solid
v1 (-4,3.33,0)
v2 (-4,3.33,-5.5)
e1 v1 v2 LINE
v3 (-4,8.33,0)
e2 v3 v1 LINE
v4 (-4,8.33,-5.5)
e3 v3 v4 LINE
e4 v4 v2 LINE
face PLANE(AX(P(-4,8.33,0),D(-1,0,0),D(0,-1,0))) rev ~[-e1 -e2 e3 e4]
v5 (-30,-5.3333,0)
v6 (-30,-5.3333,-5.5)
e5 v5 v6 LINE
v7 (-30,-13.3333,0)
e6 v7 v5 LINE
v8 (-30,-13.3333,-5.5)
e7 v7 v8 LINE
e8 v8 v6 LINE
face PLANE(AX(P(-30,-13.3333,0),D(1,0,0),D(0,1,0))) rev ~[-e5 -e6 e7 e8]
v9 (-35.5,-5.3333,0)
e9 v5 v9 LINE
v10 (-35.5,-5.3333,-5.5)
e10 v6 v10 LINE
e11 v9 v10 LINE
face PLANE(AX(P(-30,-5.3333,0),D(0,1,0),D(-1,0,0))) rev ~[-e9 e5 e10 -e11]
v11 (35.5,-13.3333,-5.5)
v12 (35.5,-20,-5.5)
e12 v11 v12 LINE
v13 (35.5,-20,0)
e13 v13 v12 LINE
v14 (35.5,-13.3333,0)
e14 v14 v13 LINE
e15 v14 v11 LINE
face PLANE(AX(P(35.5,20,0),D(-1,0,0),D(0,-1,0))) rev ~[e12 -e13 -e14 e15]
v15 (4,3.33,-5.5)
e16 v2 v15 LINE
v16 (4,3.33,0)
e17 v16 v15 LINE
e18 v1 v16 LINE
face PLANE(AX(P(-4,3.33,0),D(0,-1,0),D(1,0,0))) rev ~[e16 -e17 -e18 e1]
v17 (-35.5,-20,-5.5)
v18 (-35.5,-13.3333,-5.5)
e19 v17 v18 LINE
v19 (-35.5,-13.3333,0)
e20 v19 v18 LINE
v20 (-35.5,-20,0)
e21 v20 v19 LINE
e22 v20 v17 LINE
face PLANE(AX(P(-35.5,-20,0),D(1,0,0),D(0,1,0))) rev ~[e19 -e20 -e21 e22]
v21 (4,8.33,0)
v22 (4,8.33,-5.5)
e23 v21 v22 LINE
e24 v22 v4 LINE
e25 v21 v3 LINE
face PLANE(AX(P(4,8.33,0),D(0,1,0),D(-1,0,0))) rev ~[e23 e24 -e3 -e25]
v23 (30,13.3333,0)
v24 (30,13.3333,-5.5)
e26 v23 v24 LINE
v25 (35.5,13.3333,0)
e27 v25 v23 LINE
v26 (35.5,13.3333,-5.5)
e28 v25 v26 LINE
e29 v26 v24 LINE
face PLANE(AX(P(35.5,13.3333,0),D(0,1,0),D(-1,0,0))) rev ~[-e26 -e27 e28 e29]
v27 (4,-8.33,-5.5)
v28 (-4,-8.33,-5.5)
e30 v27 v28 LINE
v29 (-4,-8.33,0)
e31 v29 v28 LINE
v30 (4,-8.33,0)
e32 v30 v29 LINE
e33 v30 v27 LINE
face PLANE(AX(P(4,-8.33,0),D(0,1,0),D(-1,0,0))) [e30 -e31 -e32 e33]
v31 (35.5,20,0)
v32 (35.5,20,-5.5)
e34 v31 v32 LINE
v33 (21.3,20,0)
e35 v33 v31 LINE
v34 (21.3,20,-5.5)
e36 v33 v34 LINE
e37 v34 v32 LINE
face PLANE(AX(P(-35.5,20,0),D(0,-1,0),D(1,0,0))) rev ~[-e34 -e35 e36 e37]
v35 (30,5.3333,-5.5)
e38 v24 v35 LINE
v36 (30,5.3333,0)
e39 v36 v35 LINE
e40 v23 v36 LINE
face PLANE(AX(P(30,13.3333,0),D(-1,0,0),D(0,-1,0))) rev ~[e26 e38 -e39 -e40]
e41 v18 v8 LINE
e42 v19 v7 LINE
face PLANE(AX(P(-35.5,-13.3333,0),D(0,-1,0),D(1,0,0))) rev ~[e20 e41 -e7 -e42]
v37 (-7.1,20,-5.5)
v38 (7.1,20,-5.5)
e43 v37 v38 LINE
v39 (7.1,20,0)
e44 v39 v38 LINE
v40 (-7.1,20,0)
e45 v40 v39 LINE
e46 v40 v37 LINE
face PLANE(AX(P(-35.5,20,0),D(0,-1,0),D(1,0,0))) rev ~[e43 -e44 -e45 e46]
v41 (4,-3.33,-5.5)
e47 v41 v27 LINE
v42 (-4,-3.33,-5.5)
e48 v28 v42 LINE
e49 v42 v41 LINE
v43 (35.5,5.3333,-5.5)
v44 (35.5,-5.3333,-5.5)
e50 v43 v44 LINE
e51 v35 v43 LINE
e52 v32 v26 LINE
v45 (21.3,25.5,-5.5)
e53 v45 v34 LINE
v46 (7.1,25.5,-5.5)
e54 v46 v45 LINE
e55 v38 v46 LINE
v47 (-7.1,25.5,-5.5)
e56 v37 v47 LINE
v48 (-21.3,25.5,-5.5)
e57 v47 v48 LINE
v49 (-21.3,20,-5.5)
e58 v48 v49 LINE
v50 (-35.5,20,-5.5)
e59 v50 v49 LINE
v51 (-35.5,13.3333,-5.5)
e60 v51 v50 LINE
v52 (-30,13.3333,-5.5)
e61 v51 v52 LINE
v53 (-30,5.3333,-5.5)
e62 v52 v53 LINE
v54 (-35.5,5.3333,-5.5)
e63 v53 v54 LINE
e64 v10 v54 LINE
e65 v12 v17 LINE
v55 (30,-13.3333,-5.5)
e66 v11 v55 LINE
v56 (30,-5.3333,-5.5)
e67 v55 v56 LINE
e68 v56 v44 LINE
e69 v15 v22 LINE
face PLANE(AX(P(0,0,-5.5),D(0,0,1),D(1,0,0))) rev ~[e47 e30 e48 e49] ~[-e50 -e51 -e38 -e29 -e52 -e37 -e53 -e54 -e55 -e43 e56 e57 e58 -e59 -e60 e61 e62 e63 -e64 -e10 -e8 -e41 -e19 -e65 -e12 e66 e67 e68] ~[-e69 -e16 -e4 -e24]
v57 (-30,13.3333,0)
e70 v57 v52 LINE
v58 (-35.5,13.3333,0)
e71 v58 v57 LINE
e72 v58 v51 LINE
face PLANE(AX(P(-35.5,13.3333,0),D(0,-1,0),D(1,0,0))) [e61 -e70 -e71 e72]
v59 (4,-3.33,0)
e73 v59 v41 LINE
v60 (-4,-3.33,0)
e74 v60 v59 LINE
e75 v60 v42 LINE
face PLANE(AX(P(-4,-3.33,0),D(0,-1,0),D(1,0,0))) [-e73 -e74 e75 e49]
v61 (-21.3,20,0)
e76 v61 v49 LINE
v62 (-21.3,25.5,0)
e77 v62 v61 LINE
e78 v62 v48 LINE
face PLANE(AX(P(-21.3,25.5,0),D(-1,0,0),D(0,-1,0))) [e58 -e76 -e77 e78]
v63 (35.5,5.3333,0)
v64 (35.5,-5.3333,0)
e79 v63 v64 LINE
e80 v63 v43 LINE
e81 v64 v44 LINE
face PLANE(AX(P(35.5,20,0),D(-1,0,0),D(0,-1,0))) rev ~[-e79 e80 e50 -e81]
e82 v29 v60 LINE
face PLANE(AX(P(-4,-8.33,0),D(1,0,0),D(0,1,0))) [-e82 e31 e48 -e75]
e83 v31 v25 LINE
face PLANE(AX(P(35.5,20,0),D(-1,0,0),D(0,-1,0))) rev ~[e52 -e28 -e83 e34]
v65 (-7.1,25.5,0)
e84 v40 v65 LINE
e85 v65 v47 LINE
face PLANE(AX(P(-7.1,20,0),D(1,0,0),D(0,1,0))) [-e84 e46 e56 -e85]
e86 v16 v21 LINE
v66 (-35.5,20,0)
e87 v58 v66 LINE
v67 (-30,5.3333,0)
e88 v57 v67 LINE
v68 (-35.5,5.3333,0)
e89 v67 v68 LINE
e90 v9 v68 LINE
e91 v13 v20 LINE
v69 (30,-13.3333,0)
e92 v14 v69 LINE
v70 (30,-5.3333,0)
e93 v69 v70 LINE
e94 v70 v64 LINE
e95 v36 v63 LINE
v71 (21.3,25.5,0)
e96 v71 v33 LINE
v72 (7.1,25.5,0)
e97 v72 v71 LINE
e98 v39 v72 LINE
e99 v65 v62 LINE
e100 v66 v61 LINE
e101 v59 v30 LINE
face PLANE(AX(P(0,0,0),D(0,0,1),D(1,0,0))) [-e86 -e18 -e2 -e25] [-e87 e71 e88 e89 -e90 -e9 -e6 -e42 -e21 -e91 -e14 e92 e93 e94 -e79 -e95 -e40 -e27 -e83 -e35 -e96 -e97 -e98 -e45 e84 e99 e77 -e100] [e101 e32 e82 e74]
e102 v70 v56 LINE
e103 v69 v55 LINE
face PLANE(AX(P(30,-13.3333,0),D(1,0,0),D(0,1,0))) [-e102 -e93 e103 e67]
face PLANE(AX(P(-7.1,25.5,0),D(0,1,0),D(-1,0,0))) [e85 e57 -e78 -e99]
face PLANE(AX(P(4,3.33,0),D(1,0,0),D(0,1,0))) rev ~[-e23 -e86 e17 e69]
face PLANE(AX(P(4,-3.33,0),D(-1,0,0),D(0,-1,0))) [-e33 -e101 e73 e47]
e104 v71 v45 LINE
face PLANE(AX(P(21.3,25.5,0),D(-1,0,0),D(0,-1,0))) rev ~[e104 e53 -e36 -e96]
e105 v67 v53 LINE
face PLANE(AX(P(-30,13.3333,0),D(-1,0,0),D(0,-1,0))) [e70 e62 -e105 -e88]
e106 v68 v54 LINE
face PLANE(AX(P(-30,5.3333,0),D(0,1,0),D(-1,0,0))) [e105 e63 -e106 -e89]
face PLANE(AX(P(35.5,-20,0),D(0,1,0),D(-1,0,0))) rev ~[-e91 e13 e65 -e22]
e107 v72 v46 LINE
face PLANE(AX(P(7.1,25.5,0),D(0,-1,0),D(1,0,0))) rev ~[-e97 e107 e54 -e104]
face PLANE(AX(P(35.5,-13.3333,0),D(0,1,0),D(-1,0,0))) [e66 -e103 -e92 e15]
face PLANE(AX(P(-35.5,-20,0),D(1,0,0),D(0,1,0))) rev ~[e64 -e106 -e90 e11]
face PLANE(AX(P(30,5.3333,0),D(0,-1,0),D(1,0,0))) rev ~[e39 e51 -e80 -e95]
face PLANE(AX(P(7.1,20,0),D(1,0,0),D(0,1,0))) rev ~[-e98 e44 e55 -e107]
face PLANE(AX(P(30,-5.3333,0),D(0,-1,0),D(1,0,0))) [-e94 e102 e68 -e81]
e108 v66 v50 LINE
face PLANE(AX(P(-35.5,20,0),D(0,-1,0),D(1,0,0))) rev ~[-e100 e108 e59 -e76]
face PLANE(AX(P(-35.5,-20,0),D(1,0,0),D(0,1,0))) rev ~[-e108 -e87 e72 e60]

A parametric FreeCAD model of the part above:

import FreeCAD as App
import Part
import Sketcher
from FreeCAD import Vector
Q = App.Units.Quantity

doc = App.newDocument("Part")
params = doc.addObject("Spreadsheet::Sheet", "Params")
for row, (alias, value) in enumerate([
    ("sketch1_width", "71 mm"),
    ("sketch1_height", "40 mm"),
    ("pad1_length", "5.5 mm"),
    ("sketch2_width", "8 mm"),
    ("sketch2_height", "5 mm"),
    ("sketch3_height", "8 mm"),
    ("sketch3_width", "5.5 mm"),
    ("sketch4_width", "14.2 mm"),
    ("sketch4_height", "5.5 mm"),
    ("pad2_length", "5.5 mm"),
], start=1):
    params.set(f"A{row}", alias)
    params.set(f"B{row}", "=" + value)
    params.setAlias(f"B{row}", alias)

body = doc.addObject("PartDesign::Body", "Body")

# Sketch on XY plane
sketch1 = body.newObject("Sketcher::SketchObject", "Sketch")
sketch1.AttachmentSupport = (doc.getObject("XY_Plane"), [""])
sketch1.MapMode = "FlatFace"
sketch1.addGeometry([
    Part.LineSegment(Vector(-36, -20, 0), Vector(36, -20, 0)),
    Part.LineSegment(Vector(36, -20, 0), Vector(36, 20, 0)),
    Part.LineSegment(Vector(36, 20, 0), Vector(-36, 20, 0)),
    Part.LineSegment(Vector(-36, 20, 0), Vector(-36, -20, 0)),
], False)
sketch1.addConstraint([
    Sketcher.Constraint("Coincident", 0, 2, 1, 1),
    Sketcher.Constraint("Coincident", 1, 2, 2, 1),
    Sketcher.Constraint("Coincident", 2, 2, 3, 1),
    Sketcher.Constraint("Coincident", 3, 2, 0, 1),
    Sketcher.Constraint("Horizontal", 0),
    Sketcher.Constraint("Vertical", 1),
    Sketcher.Constraint("Horizontal", 2),
    Sketcher.Constraint("Vertical", 3),
    Sketcher.Constraint("Symmetric", 0, 2, 2, 2, -1, 1),
    Sketcher.Constraint("DistanceX", 0, 1, 0, 2, Q("71 mm")),
    Sketcher.Constraint("DistanceY", 1, 1, 1, 2, Q("40 mm")),
])
sketch1.setExpression("Constraints[9]", "Params.sketch1_width")
sketch1.setExpression("Constraints[10]", "Params.sketch1_height")
pad1 = body.newObject("PartDesign::Pad", "Pad")
pad1.Profile = sketch1
pad1.setExpression("Length", "Params.pad1_length")
pad1.Reversed = True

# Sketch on XY plane
sketch2 = body.newObject("Sketcher::SketchObject", "Sketch001")
sketch2.AttachmentSupport = (doc.getObject("XY_Plane"), [""])
sketch2.MapMode = "FlatFace"
sketch2.addGeometry([
    Part.LineSegment(Vector(-4, -8, 0), Vector(4, -8, 0)),  # 0
    Part.LineSegment(Vector(4, -8, 0), Vector(4, -3, 0)),  # 1
    Part.LineSegment(Vector(4, -3, 0), Vector(-4, -3, 0)),  # 2
    Part.LineSegment(Vector(-4, -3, 0), Vector(-4, -8, 0)),  # 3
    Part.LineSegment(Vector(4, 3, 0), Vector(4, 8, 0)),  # 4
    Part.LineSegment(Vector(4, 8, 0), Vector(-4, 8, 0)),  # 5
    Part.LineSegment(Vector(-4, 8, 0), Vector(-4, 3, 0)),  # 6
    Part.LineSegment(Vector(-4, 3, 0), Vector(4, 3, 0)),  # 7
], False)
sketch2.addConstraint([
    Sketcher.Constraint("Coincident", 0, 2, 1, 1),
    Sketcher.Constraint("Coincident", 1, 2, 2, 1),
    Sketcher.Constraint("Coincident", 2, 2, 3, 1),
    Sketcher.Constraint("Coincident", 3, 2, 0, 1),
    Sketcher.Constraint("Coincident", 4, 2, 5, 1),
    Sketcher.Constraint("Coincident", 5, 2, 6, 1),
    Sketcher.Constraint("Coincident", 6, 2, 7, 1),
    Sketcher.Constraint("Coincident", 7, 2, 4, 1),
    Sketcher.Constraint("Horizontal", 0),
    Sketcher.Constraint("Vertical", 1),
    Sketcher.Constraint("Horizontal", 2),
    Sketcher.Constraint("Vertical", 3),
    Sketcher.Constraint("Vertical", 4),
    Sketcher.Constraint("Horizontal", 5),
    Sketcher.Constraint("Vertical", 6),
    Sketcher.Constraint("Horizontal", 7),
    Sketcher.Constraint("Symmetric", 3, 2, 4, 2, -1, 1),
    Sketcher.Constraint("Symmetric", 1, 2, 6, 2, -1, 1),
    Sketcher.Constraint("Vertical", 1, 2, 4, 2),
    Sketcher.Constraint("DistanceX", 0, 1, 0, 2, Q("8 mm")),
    Sketcher.Constraint("DistanceY", 1, 1, 1, 2, Q("5 mm")),
    Sketcher.Constraint("DistanceY", 1, 2, -1, 1, Q("3.33 mm")),
])
sketch2.setExpression("Constraints[19]", "Params.sketch2_width")
sketch2.setExpression("Constraints[20]", "Params.sketch2_height")
pocket1 = body.newObject("PartDesign::Pocket", "Pocket")
pocket1.Profile = sketch2
pocket1.Type = "ThroughAll"

# Sketch on XY plane
sketch3 = body.newObject("Sketcher::SketchObject", "Sketch002")
sketch3.AttachmentSupport = (doc.getObject("XY_Plane"), [""])
sketch3.MapMode = "FlatFace"
sketch3.addGeometry([
    Part.LineSegment(Vector(-30, -5, 0), Vector(-36, -5, 0)),  # 0
    Part.LineSegment(Vector(-36, -5, 0), Vector(-36, -13, 0)),  # 1
    Part.LineSegment(Vector(-36, -13, 0), Vector(-30, -13, 0)),  # 2
    Part.LineSegment(Vector(-30, -13, 0), Vector(-30, -5, 0)),  # 3
    Part.LineSegment(Vector(-30, 13, 0), Vector(-36, 13, 0)),  # 4
    Part.LineSegment(Vector(-36, 13, 0), Vector(-36, 5, 0)),  # 5
    Part.LineSegment(Vector(-36, 5, 0), Vector(-30, 5, 0)),  # 6
    Part.LineSegment(Vector(-30, 5, 0), Vector(-30, 13, 0)),  # 7
    Part.LineSegment(Vector(36, 5, 0), Vector(36, 13, 0)),  # 8
    Part.LineSegment(Vector(36, 13, 0), Vector(30, 13, 0)),  # 9
    Part.LineSegment(Vector(30, 13, 0), Vector(30, 5, 0)),  # 10
    Part.LineSegment(Vector(30, 5, 0), Vector(36, 5, 0)),  # 11
    Part.LineSegment(Vector(30, -5, 0), Vector(30, -13, 0)),  # 12
    Part.LineSegment(Vector(30, -13, 0), Vector(36, -13, 0)),  # 13
    Part.LineSegment(Vector(36, -13, 0), Vector(36, -5, 0)),  # 14
    Part.LineSegment(Vector(36, -5, 0), Vector(30, -5, 0)),  # 15
], False)
sketch3.addConstraint([
    Sketcher.Constraint("Coincident", 0, 2, 1, 1),
    Sketcher.Constraint("Coincident", 1, 2, 2, 1),
    Sketcher.Constraint("Coincident", 2, 2, 3, 1),
    Sketcher.Constraint("Coincident", 3, 2, 0, 1),
    Sketcher.Constraint("Coincident", 4, 2, 5, 1),
    Sketcher.Constraint("Coincident", 5, 2, 6, 1),
    Sketcher.Constraint("Coincident", 6, 2, 7, 1),
    Sketcher.Constraint("Coincident", 7, 2, 4, 1),
    Sketcher.Constraint("Coincident", 8, 2, 9, 1),
    Sketcher.Constraint("Coincident", 9, 2, 10, 1),
    Sketcher.Constraint("Coincident", 10, 2, 11, 1),
    Sketcher.Constraint("Coincident", 11, 2, 8, 1),
    Sketcher.Constraint("Coincident", 12, 2, 13, 1),
    Sketcher.Constraint("Coincident", 13, 2, 14, 1),
    Sketcher.Constraint("Coincident", 14, 2, 15, 1),
    Sketcher.Constraint("Coincident", 15, 2, 12, 1),
    Sketcher.Constraint("Horizontal", 0),
    Sketcher.Constraint("Vertical", 1),
    Sketcher.Constraint("Horizontal", 2),
    Sketcher.Constraint("Vertical", 3),
    Sketcher.Constraint("Horizontal", 4),
    Sketcher.Constraint("Vertical", 5),
    Sketcher.Constraint("Horizontal", 6),
    Sketcher.Constraint("Vertical", 7),
    Sketcher.Constraint("Vertical", 8),
    Sketcher.Constraint("Horizontal", 9),
    Sketcher.Constraint("Vertical", 10),
    Sketcher.Constraint("Horizontal", 11),
    Sketcher.Constraint("Vertical", 12),
    Sketcher.Constraint("Horizontal", 13),
    Sketcher.Constraint("Vertical", 14),
    Sketcher.Constraint("Horizontal", 15),
    Sketcher.Constraint("Symmetric", 1, 2, 8, 2, -1, 1),
    Sketcher.Constraint("Symmetric", 3, 2, 10, 2, -1, 1),
    Sketcher.Constraint("Symmetric", 7, 2, 12, 2, -1, 1),
    Sketcher.Constraint("Symmetric", 5, 2, 14, 2, -1, 1),
    Sketcher.Constraint("Symmetric", 4, 2, 8, 2, -2),
    Sketcher.Constraint("Symmetric", 6, 2, 10, 2, -2),
    Sketcher.Constraint("DistanceY", 1, 2, 1, 1, Q("8 mm")),
    Sketcher.Constraint("DistanceX", 0, 2, 0, 1, Q("5.5 mm")),
    Sketcher.Constraint("DistanceX", 2, 2, -1, 1, Q("30 mm")),
    Sketcher.Constraint("DistanceY", 0, 2, -1, 1, Q("5.3333 mm")),
])
sketch3.setExpression("Constraints[38]", "Params.sketch3_height")
sketch3.setExpression("Constraints[39]", "Params.sketch3_width")
pocket2 = body.newObject("PartDesign::Pocket", "Pocket001")
pocket2.Profile = sketch3
pocket2.Type = "ThroughAll"

# Sketch on XY plane
sketch4 = body.newObject("Sketcher::SketchObject", "Sketch003")
sketch4.AttachmentSupport = (doc.getObject("XY_Plane"), [""])
sketch4.MapMode = "FlatFace"
sketch4.addGeometry([
    Part.LineSegment(Vector(-21, 26, 0), Vector(-21, 20, 0)),  # 0
    Part.LineSegment(Vector(-21, 20, 0), Vector(-7, 20, 0)),  # 1
    Part.LineSegment(Vector(-7, 20, 0), Vector(-7, 26, 0)),  # 2
    Part.LineSegment(Vector(-7, 26, 0), Vector(-21, 26, 0)),  # 3
    Part.LineSegment(Vector(7, 26, 0), Vector(7, 20, 0)),  # 4
    Part.LineSegment(Vector(7, 20, 0), Vector(21, 20, 0)),  # 5
    Part.LineSegment(Vector(21, 20, 0), Vector(21, 26, 0)),  # 6
    Part.LineSegment(Vector(21, 26, 0), Vector(7, 26, 0)),  # 7
], False)
sketch4.addConstraint([
    Sketcher.Constraint("Coincident", 0, 2, 1, 1),
    Sketcher.Constraint("Coincident", 1, 2, 2, 1),
    Sketcher.Constraint("Coincident", 2, 2, 3, 1),
    Sketcher.Constraint("Coincident", 3, 2, 0, 1),
    Sketcher.Constraint("Coincident", 4, 2, 5, 1),
    Sketcher.Constraint("Coincident", 5, 2, 6, 1),
    Sketcher.Constraint("Coincident", 6, 2, 7, 1),
    Sketcher.Constraint("Coincident", 7, 2, 4, 1),
    Sketcher.Constraint("Vertical", 0),
    Sketcher.Constraint("Horizontal", 1),
    Sketcher.Constraint("Vertical", 2),
    Sketcher.Constraint("Horizontal", 3),
    Sketcher.Constraint("Vertical", 4),
    Sketcher.Constraint("Horizontal", 5),
    Sketcher.Constraint("Vertical", 6),
    Sketcher.Constraint("Horizontal", 7),
    Sketcher.Constraint("Symmetric", 1, 2, 4, 2, -2),
    Sketcher.Constraint("Symmetric", 3, 2, 6, 2, -2),
    Sketcher.Constraint("DistanceX", 1, 1, 1, 2, Q("14.2 mm")),
    Sketcher.Constraint("DistanceY", 0, 2, 0, 1, Q("5.5 mm")),
    Sketcher.Constraint("DistanceX", 1, 2, 4, 2, Q("14.2 mm")),
    Sketcher.Constraint("DistanceY", -1, 1, 0, 2, Q("20 mm")),
])
sketch4.setExpression("Constraints[18]", "Params.sketch4_width")
sketch4.setExpression("Constraints[19]", "Params.sketch4_height")
pad2 = body.newObject("PartDesign::Pad", "Pad001")
pad2.Profile = sketch4
pad2.setExpression("Length", "Params.pad2_length")
pad2.Reversed = True

doc.recompute()
